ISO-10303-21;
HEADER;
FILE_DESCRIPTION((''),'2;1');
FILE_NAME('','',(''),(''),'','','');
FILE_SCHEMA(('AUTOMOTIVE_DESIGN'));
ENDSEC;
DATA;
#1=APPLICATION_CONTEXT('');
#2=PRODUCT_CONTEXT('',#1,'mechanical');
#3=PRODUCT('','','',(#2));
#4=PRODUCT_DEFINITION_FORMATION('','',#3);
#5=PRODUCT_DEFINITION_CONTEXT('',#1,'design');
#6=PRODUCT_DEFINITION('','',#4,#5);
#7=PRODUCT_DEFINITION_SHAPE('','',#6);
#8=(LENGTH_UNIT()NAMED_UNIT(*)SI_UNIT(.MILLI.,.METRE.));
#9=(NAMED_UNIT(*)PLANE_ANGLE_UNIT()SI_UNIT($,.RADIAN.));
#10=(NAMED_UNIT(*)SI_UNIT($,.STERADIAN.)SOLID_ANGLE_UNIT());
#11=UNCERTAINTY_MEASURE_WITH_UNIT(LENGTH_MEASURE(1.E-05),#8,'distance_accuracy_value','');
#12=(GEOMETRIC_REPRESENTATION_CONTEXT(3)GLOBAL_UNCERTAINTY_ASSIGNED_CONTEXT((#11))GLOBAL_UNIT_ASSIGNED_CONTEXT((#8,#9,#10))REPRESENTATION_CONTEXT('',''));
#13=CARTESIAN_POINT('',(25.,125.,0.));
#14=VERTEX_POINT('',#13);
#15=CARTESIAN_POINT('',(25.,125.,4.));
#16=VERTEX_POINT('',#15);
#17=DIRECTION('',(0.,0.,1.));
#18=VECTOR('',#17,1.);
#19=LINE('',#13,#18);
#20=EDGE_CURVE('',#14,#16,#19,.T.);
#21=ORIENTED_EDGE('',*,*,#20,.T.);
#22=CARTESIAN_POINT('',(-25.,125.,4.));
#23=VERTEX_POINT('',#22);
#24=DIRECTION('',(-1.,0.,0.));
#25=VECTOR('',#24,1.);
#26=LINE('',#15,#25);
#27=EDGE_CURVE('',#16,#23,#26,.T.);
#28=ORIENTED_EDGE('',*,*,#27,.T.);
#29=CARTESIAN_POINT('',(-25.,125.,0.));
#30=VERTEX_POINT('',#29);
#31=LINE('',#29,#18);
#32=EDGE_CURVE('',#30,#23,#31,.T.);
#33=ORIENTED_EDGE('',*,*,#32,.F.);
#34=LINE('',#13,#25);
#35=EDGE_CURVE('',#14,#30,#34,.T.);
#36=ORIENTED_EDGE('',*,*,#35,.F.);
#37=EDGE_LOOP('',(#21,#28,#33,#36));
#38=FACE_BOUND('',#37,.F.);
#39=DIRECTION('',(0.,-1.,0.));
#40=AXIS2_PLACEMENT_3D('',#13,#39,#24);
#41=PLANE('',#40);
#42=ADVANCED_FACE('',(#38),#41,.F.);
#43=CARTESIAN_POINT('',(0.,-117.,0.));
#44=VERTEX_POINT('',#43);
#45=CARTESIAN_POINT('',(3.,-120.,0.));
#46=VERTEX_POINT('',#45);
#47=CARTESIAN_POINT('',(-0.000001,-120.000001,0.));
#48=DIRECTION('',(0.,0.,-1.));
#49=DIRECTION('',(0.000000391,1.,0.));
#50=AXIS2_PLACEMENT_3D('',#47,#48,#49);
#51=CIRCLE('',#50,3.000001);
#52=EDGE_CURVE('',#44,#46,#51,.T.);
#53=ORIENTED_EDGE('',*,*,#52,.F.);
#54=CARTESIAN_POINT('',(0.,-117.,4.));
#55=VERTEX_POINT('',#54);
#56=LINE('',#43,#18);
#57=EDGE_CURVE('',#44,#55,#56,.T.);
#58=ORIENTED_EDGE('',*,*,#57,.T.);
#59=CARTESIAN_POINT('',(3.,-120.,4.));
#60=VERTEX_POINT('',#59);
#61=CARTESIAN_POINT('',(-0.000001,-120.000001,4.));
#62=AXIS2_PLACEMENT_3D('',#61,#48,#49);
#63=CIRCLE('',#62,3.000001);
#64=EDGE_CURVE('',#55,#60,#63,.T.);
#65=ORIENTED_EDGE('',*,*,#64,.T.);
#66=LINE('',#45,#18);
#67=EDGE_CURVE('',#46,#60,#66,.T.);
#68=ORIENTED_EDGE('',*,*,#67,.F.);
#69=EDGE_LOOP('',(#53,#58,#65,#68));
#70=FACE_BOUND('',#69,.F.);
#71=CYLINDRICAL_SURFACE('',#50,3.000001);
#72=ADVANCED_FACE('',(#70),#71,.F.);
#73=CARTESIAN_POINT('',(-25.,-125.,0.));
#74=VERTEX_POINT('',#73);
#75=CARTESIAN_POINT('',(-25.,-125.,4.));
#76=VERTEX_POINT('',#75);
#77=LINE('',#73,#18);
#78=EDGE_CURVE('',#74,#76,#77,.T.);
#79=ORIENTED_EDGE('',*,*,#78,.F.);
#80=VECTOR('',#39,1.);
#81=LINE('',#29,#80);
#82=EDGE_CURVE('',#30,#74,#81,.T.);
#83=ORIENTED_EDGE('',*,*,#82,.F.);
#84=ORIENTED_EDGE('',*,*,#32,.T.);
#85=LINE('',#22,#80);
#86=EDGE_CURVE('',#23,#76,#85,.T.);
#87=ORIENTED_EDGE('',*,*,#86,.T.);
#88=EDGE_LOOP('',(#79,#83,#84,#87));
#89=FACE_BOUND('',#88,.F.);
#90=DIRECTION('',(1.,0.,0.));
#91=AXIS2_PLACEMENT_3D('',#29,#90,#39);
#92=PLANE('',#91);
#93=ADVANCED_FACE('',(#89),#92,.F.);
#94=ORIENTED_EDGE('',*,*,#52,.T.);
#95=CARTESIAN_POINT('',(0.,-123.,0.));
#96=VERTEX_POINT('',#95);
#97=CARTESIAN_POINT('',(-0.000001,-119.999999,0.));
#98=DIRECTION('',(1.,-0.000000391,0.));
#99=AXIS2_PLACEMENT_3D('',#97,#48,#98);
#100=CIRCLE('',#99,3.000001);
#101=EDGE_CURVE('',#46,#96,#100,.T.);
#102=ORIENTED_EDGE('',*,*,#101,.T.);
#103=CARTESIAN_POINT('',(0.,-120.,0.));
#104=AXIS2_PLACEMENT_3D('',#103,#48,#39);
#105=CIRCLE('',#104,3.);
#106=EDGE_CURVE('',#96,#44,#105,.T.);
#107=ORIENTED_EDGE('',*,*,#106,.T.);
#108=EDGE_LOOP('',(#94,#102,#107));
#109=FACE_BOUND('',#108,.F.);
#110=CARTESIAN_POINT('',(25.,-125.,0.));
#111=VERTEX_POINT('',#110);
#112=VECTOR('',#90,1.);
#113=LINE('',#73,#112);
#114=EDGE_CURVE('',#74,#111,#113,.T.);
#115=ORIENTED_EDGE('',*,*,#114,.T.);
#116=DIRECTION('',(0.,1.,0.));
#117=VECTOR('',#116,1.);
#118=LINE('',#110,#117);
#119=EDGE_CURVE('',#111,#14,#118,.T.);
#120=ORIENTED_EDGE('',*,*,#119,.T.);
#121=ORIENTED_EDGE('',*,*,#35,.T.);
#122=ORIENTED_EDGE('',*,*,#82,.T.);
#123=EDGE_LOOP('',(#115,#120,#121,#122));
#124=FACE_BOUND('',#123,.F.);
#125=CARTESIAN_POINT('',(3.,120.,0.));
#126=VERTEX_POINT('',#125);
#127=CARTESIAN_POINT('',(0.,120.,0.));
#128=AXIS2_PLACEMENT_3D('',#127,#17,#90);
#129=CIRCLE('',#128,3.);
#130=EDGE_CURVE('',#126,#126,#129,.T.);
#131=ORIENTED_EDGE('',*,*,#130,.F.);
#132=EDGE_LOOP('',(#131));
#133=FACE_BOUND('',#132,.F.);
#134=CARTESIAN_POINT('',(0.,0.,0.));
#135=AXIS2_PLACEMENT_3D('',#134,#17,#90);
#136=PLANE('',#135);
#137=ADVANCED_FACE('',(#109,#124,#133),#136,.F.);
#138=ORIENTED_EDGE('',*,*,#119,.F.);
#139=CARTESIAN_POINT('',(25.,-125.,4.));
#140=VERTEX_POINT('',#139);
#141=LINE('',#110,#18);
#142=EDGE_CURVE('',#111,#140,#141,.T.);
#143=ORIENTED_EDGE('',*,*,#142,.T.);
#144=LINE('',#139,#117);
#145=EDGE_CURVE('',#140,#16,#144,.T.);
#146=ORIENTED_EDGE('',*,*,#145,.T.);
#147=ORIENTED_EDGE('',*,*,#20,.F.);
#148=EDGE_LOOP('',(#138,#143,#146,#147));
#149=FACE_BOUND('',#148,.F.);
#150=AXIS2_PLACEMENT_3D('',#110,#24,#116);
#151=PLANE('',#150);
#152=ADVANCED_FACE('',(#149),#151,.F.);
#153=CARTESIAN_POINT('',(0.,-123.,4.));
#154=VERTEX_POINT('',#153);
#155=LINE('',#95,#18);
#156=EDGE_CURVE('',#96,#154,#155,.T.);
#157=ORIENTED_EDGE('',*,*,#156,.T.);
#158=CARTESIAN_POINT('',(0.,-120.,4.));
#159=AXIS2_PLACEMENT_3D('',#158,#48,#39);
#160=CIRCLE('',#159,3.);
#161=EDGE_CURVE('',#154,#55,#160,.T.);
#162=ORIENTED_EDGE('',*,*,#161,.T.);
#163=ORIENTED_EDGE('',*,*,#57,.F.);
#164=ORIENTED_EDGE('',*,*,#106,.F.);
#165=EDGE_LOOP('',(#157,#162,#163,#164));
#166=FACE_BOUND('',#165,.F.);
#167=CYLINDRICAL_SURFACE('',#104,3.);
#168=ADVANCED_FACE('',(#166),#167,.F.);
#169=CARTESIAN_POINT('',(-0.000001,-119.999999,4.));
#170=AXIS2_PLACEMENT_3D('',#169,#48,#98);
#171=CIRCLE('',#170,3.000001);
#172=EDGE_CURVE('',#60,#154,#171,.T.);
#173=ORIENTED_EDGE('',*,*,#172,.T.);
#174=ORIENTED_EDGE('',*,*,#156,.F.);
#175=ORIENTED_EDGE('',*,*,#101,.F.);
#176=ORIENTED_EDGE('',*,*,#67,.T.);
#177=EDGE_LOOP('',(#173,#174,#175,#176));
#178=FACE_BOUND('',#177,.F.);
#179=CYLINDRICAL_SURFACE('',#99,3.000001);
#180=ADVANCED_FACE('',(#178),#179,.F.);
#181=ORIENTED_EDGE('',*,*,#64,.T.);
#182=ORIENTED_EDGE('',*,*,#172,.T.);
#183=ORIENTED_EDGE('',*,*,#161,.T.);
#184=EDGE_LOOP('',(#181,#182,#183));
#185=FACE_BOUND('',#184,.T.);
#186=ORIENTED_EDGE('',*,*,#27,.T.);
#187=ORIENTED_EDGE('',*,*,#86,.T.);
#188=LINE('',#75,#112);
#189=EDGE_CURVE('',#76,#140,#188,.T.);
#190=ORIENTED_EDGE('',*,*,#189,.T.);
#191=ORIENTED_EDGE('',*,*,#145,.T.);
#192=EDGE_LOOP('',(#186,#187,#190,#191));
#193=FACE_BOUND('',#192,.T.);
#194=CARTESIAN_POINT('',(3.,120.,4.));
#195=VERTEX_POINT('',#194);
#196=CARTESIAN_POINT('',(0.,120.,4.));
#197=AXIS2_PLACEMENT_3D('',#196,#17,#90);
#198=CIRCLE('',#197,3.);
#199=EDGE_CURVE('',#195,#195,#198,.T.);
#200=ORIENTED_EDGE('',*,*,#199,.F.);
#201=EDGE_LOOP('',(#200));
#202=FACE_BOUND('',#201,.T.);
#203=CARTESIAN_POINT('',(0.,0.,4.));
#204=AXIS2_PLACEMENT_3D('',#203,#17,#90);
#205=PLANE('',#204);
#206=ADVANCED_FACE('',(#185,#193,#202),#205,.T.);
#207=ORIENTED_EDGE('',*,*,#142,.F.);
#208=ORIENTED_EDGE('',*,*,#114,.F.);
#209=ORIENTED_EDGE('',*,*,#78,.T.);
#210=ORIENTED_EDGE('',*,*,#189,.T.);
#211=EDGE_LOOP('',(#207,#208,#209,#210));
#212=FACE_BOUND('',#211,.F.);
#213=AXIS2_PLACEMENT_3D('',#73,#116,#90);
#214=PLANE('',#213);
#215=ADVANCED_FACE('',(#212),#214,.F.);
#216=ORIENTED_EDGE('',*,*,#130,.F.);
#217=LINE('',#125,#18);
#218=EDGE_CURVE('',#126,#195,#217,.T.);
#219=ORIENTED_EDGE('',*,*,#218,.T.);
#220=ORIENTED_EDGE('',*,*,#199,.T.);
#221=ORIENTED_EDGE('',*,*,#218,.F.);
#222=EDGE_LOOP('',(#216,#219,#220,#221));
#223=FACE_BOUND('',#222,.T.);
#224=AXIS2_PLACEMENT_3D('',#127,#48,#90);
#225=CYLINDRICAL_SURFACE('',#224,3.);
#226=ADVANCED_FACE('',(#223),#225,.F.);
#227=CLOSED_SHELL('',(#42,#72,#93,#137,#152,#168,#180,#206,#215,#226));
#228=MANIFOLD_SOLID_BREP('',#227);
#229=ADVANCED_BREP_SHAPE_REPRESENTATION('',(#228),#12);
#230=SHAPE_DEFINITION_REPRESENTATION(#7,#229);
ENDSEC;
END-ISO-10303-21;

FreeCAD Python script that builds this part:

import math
import FreeCAD as App
import Part
import Sketcher
from FreeCAD import Vector


def add_polygon(sketch, points):
    """Adds a closed chain of lines whose ends are joined by coincident constraints."""
    first, n = sketch.GeometryCount, len(points)
    for a, b in zip(points, points[1:] + points[:1]):
        sketch.addGeometry(Part.LineSegment(App.Vector(*a, 0), App.Vector(*b, 0)), False)
    for i in range(n):
        sketch.addConstraint(Sketcher.Constraint("Coincident", first + i, 2, first + (i + 1) % n, 1))

doc = App.newDocument("Part")
body = doc.addObject("PartDesign::Body", "Body")

# Sketch on XY plane
sketch1 = body.newObject("Sketcher::SketchObject", "Sketch")
sketch1.AttachmentSupport = (doc.getObject("XY_Plane"), [""])
sketch1.MapMode = "FlatFace"
add_polygon(sketch1, [(25, 125), (-25, 125), (-25, -125), (25, -125)])  # lines 0-3
sketch1.addGeometry(Part.ArcOfCircle(Part.Circle(Vector(0, -120, 0), Vector(0, 0, 1), 3), math.radians(0), math.radians(90)), False)  # 4
sketch1.addGeometry(Part.ArcOfCircle(Part.Circle(Vector(0, -120, 0), Vector(0, 0, 1), 3), math.radians(-90), math.radians(0)), False)  # 5
sketch1.addGeometry(Part.ArcOfCircle(Part.Circle(Vector(0, -120, 0), Vector(0, 0, 1), 3), math.radians(90), math.radians(270)), False)  # 6
sketch1.addGeometry(Part.Circle(Vector(0, 120, 0), Vector(0, 0, 1), 3), False)  # 7
sketch1.addConstraint([
    Sketcher.Constraint("Tangent", 4, 1, 5, 2),
    Sketcher.Constraint("Tangent", 5, 1, 6, 2),
    Sketcher.Constraint("Tangent", 6, 1, 4, 2),
    Sketcher.Constraint("Horizontal", 0),
    Sketcher.Constraint("Vertical", 1),
    Sketcher.Constraint("Horizontal", 2),
    Sketcher.Constraint("Vertical", 3),
    Sketcher.Constraint("Equal", 6, 7),
    Sketcher.Constraint("Symmetric", 4, 3, 7, 3, -1, 1),
    Sketcher.Constraint("Symmetric", 0, 2, 2, 2, -1, 1),
    Sketcher.Constraint("PointOnObject", 4, 3, -2),
    Sketcher.Constraint("PointOnObject", 5, 1, -2),
    Sketcher.Constraint("PointOnObject", 6, 1, -2),
    Sketcher.Constraint("Horizontal", 6, 3, 4, 1),
    Sketcher.Constraint("Diameter", 7, 6.0),
    Sketcher.Constraint("DistanceX", 0, 2, 0, 1, 50.0),
    Sketcher.Constraint("DistanceY", 1, 2, 1, 1, 250.0),
    Sketcher.Constraint("DistanceY", 4, 3, -1, 1, 120.000001),
])
pad1 = body.newObject("PartDesign::Pad", "Pad")
pad1.Profile = sketch1
pad1.Length = 4

doc.recompute()
